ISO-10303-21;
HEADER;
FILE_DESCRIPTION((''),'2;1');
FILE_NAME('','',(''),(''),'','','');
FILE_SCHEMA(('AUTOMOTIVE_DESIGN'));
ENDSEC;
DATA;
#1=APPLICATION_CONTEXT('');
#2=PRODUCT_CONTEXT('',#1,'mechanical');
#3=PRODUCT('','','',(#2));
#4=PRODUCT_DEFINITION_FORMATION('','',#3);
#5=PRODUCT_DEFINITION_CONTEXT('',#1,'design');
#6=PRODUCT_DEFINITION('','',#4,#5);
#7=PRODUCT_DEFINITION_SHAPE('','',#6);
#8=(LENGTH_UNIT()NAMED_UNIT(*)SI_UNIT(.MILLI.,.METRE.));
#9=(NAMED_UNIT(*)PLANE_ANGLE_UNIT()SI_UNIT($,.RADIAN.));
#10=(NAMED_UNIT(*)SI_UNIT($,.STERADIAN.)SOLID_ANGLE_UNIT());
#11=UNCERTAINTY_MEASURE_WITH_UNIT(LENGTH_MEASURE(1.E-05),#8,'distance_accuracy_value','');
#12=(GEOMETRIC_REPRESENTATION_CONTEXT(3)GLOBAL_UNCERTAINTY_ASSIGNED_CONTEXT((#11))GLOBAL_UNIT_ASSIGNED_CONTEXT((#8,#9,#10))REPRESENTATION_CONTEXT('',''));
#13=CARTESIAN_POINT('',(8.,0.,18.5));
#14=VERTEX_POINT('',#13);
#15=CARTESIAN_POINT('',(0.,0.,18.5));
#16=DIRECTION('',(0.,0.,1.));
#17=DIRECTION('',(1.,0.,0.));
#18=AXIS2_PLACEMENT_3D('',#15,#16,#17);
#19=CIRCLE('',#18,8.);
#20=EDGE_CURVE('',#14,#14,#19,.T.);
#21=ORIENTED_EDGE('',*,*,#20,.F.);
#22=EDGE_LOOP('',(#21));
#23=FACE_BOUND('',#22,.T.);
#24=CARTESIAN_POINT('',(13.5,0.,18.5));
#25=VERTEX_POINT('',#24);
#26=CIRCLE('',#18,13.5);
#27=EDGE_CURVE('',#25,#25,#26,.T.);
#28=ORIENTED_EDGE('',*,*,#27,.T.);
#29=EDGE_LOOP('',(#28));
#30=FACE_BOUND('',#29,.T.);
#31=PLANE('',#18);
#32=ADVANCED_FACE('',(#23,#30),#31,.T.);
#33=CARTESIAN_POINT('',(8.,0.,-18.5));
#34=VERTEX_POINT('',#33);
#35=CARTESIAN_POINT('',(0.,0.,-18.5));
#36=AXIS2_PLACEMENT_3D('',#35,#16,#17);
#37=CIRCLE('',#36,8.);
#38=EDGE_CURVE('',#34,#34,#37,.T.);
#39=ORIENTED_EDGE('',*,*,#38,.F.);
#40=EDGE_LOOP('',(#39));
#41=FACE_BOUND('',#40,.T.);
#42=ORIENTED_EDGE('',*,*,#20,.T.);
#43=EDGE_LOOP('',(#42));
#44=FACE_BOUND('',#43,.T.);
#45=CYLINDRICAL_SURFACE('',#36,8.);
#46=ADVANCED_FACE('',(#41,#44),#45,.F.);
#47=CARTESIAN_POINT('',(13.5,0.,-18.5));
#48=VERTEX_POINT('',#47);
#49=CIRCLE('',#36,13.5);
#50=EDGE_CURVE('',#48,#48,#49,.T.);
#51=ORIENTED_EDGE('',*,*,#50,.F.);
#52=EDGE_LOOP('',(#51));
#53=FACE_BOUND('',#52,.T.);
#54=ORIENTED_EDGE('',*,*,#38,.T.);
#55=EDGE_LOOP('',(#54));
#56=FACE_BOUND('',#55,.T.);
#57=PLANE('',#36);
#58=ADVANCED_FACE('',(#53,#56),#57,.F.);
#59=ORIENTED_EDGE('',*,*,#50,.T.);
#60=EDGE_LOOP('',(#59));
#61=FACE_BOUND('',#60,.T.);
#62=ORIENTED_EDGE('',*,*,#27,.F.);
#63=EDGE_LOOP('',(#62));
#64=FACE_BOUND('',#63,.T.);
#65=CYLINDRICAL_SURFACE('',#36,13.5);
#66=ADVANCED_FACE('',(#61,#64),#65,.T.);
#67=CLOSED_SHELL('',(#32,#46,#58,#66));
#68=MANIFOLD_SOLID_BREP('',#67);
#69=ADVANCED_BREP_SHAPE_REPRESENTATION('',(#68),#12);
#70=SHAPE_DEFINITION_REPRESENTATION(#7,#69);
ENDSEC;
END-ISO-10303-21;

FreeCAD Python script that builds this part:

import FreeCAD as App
import Part
import Sketcher
from FreeCAD import Vector
Q = App.Units.Quantity

doc = App.newDocument("Part")
params = doc.addObject("Spreadsheet::Sheet", "Params")
for row, (alias, value) in enumerate([
    ("sketch1_diameter", "27 mm"),
    ("sketch1_diameter2", "16 mm"),
    ("pad1_length", "18.5 mm"),
    ("pad1_length2", "18.5 mm"),
], start=1):
    params.set(f"A{row}", alias)
    params.set(f"B{row}", "=" + value)
    params.setAlias(f"B{row}", alias)

body = doc.addObject("PartDesign::Body", "Body")

# Sketch on XY plane
sketch1 = body.newObject("Sketcher::SketchObject", "Sketch")
sketch1.AttachmentSupport = (doc.getObject("XY_Plane"), [""])
sketch1.MapMode = "FlatFace"
sketch1.addGeometry([
    Part.Circle(Vector(0, 0, 0), Vector(0, 0, 1), 13.5),
    Part.Circle(Vector(0, 0, 0), Vector(0, 0, 1), 8),
], False)
sketch1.addConstraint([
    Sketcher.Constraint("Coincident", 0, 3, -1, 1),
    Sketcher.Constraint("Coincident", 1, 3, -1, 1),
    Sketcher.Constraint("Diameter", 0, Q("27 mm")),
    Sketcher.Constraint("Diameter", 1, Q("16 mm")),
])
sketch1.setExpression("Constraints[2]", "Params.sketch1_diameter")
sketch1.setExpression("Constraints[3]", "Params.sketch1_diameter2")
pad1 = body.newObject("PartDesign::Pad", "Pad")
pad1.Profile = sketch1
pad1.Type = "TwoLengths"
pad1.setExpression("Length", "Params.pad1_length")
pad1.setExpression("Length2", "Params.pad1_length2")

doc.recompute()
